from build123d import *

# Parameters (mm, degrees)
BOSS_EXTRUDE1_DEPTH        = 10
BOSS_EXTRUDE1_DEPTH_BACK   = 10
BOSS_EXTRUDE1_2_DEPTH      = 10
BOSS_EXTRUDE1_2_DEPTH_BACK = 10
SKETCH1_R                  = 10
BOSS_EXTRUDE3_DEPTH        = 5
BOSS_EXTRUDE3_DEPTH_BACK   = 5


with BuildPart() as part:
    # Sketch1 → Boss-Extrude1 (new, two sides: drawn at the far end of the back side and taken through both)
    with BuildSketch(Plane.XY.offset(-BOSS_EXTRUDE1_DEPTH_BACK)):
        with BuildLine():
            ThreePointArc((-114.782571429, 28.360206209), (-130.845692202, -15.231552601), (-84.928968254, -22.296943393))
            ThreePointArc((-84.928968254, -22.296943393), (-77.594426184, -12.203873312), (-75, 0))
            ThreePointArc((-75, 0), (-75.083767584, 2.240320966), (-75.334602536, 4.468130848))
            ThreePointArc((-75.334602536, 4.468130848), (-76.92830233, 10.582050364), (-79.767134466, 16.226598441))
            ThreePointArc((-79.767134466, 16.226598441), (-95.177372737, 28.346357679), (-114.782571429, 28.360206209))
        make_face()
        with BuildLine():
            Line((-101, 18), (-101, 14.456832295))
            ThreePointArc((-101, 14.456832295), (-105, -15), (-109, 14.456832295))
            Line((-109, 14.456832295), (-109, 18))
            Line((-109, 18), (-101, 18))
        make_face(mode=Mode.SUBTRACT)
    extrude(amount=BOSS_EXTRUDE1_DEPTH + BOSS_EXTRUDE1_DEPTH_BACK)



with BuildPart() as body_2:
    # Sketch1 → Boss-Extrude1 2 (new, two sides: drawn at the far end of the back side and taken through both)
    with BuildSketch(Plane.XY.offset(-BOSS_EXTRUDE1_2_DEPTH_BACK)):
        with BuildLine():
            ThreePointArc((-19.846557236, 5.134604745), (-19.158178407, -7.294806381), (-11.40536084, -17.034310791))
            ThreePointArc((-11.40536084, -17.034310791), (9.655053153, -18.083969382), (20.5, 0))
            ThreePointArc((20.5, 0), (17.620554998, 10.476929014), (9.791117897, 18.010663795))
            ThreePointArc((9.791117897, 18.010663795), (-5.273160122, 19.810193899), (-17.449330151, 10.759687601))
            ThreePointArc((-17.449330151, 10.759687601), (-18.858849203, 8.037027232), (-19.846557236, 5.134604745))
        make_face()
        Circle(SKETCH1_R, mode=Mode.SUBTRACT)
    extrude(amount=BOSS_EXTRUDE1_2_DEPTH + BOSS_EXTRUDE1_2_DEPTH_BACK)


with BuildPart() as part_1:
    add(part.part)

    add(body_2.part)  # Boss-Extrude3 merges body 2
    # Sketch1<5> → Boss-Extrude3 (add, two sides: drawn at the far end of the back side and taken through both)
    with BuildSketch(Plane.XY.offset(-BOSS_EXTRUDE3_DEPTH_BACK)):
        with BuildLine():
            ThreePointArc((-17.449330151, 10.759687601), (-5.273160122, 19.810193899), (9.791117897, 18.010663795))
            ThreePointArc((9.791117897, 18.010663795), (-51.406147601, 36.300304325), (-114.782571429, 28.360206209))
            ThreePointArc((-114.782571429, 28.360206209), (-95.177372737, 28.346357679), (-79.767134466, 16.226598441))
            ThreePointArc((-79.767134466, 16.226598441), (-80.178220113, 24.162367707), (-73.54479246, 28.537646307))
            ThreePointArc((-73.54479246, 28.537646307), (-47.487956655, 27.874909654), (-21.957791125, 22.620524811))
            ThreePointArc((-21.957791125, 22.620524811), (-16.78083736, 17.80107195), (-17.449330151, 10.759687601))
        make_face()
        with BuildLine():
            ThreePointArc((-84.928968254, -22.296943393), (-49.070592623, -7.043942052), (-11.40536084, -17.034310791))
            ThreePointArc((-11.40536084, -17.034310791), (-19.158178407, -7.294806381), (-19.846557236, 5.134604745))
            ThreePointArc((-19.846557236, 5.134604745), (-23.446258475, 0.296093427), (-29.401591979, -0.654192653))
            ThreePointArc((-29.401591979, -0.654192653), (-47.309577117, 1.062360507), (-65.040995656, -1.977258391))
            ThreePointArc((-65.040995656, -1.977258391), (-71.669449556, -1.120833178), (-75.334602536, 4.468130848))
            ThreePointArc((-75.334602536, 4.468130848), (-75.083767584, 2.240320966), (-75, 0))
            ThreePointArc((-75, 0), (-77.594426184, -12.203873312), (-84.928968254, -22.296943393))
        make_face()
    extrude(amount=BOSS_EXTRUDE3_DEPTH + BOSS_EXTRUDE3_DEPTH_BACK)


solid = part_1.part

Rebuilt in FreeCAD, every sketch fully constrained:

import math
import FreeCAD as App
import Part
import Sketcher

V = App.Vector
Q = App.Units.Quantity

doc = App.newDocument("Part")
body = doc.addObject("PartDesign::Body", "Body")

sketch1 = doc.addObject("Sketcher::SketchObject", "Sketch")
body.addObject(sketch1)
sketch1.AttachmentSupport = (doc.XY_Plane, [""])
sketch1.MapMode = "FlatFace"
sketch1.addGeometry([
    Part.ArcOfCircle(Part.Circle(V(-105, 0, 0), V(0, 0, 1), 30), math.radians(109), math.radians(312)),
    Part.ArcOfCircle(Part.Circle(V(-105, 0, 0), V(0, 0, 1), 30), math.radians(-48), math.radians(0)),
    Part.ArcOfCircle(Part.Circle(V(-105, 0, 0), V(0, 0, 1), 30), math.radians(0), math.radians(8.57)),
    Part.ArcOfCircle(Part.Circle(V(-105, 0, 0), V(0, 0, 1), 30), math.radians(9), math.radians(33)),
    Part.ArcOfCircle(Part.Circle(V(-105, 0, 0), V(0, 0, 1), 30), math.radians(33), math.radians(109)),
    Part.LineSegment(V(-109, 18, 0), V(-101, 18, 0)),
    Part.LineSegment(V(-101, 18, 0), V(-101, 14.5, 0)),
    Part.ArcOfCircle(Part.Circle(V(-105, 0, 0), V(0, 0, 1), 15), math.radians(105), math.radians(435)),
    Part.LineSegment(V(-109, 14.5, 0), V(-109, 18, 0)),
], False)
sketch1.addConstraint([
    Sketcher.Constraint("Tangent", 0, 2, 1, 1),
    Sketcher.Constraint("Tangent", 1, 2, 2, 1),
    Sketcher.Constraint("Tangent", 2, 2, 3, 1),
    Sketcher.Constraint("Tangent", 3, 2, 4, 1),
    Sketcher.Constraint("Tangent", 4, 2, 0, 1),
    Sketcher.Constraint("Coincident", 5, 2, 6, 1),
    Sketcher.Constraint("Coincident", 6, 2, 7, 2),
    Sketcher.Constraint("Coincident", 7, 1, 8, 1),
    Sketcher.Constraint("Coincident", 8, 2, 5, 1),
    Sketcher.Constraint("Horizontal", 5),
    Sketcher.Constraint("Vertical", 6),
    Sketcher.Constraint("Vertical", 8),
    Sketcher.Constraint("Coincident", 2, 3, 0, 3),
    Sketcher.Constraint("Coincident", 7, 3, 0, 3),
    Sketcher.Constraint("PointOnObject", 0, 3, -1),
    Sketcher.Constraint("PointOnObject", 1, 2, -1),
    Sketcher.Constraint("Horizontal", 6, 2, 7, 1),
    Sketcher.Constraint("Radius", 0, Q("30 mm")),
    Sketcher.Constraint("Radius", 7, Q("15 mm")),
    Sketcher.Constraint("DistanceX", 5, 1, 5, 2, Q("8 mm")),
    Sketcher.Constraint("DistanceX", 0, 3, -1, 1, Q("105 mm")),
    Sketcher.Constraint("DistanceY", -1, 1, 5, 2, Q("18 mm")),
    Sketcher.Constraint("DistanceY", -1, 1, 3, 2, Q("16.226598 mm")),
    Sketcher.Constraint("DistanceX", 0, 2, -1, 1, Q("84.928968 mm")),
    Sketcher.Constraint("DistanceY", -1, 1, 2, 2, Q("4.468131 mm")),
    Sketcher.Constraint("DistanceX", 4, 2, -1, 1, Q("114.782571 mm")),
])
pad1 = doc.addObject("PartDesign::Pad", "Pad")
body.addObject(pad1)
pad1.Profile = sketch1
pad1.Type = "TwoLengths"
pad1.Length = 10
pad1.Length2 = 10
body2 = doc.addObject("PartDesign::Body", "Body001")

sketch2 = doc.addObject("Sketcher::SketchObject", "Sketch001")
body2.addObject(sketch2)
sketch2.AttachmentSupport = (doc.getObject("XY_Plane001"), [""])
sketch2.MapMode = "FlatFace"
sketch2.addGeometry([
    Part.ArcOfCircle(Part.Circle(V(0, 0, 0), V(0, 0, 1), 20), math.radians(165), math.radians(236)),
    Part.ArcOfCircle(Part.Circle(V(0, 0, 0), V(0, 0, 1), 20), math.radians(-124), math.radians(0)),
    Part.ArcOfCircle(Part.Circle(V(0, 0, 0), V(0, 0, 1), 21), math.radians(0), math.radians(61)),
    Part.ArcOfCircle(Part.Circle(V(0, 0, 0), V(0, 0, 1), 21), math.radians(61), math.radians(148)),
    Part.ArcOfCircle(Part.Circle(V(0, 0, 0), V(0, 0, 1), 21), math.radians(148.34), math.radians(165.49)),
    Part.Circle(V(0, 0, 0), V(0, 0, 1), 10),
], False)
sketch2.addConstraint([
    Sketcher.Constraint("Tangent", 0, 2, 1, 1),
    Sketcher.Constraint("Tangent", 1, 2, 2, 1),
    Sketcher.Constraint("Tangent", 2, 2, 3, 1),
    Sketcher.Constraint("Tangent", 3, 2, 4, 1),
    Sketcher.Constraint("Tangent", 4, 2, 0, 1),
    Sketcher.Constraint("Coincident", 0, 3, -1, 1),
    Sketcher.Constraint("Coincident", 2, 3, -1, 1),
    Sketcher.Constraint("Coincident", 5, 3, -1, 1),
    Sketcher.Constraint("PointOnObject", 1, 2, -1),
    Sketcher.Constraint("Diameter", 5, Q("20 mm")),
    Sketcher.Constraint("Radius", 0, Q("20.5 mm")),
    Sketcher.Constraint("DistanceX", 0, 2, -1, 1, Q("11.405361 mm")),
    Sketcher.Constraint("DistanceX", 3, 2, -1, 1, Q("17.44933 mm")),
    Sketcher.Constraint("DistanceX", -1, 1, 2, 2, Q("9.791118 mm")),
    Sketcher.Constraint("DistanceX", 4, 2, -1, 1, Q("19.846557 mm")),
])
pad2 = doc.addObject("PartDesign::Pad", "Pad001")
body2.addObject(pad2)
pad2.Profile = sketch2
pad2.Type = "TwoLengths"
pad2.Length = 10
pad2.Length2 = 10
body.AllowCompound = True
doc.recompute()

boolean = doc.addObject("PartDesign::Boolean", "Boolean")
body.addObject(boolean)
boolean.Type = "Fuse"
boolean.addObjects([body2])

sketch3 = doc.addObject("Sketcher::SketchObject", "Sketch002")
body.addObject(sketch3)
sketch3.AttachmentSupport = (doc.XY_Plane, [""])
sketch3.MapMode = "FlatFace"
sketch3.addGeometry([
    Part.ArcOfCircle(Part.Circle(V(0, 0, 0), V(0, 0, 1), 20.5), math.radians(61), math.radians(148)),
    Part.ArcOfCircle(Part.Circle(V(-64.2, -118.2, 0), V(0, 0, 1), 155), math.radians(61), math.radians(109)),
    Part.ArcOfCircle(Part.Circle(V(-105, 0, 0), V(0, 0, 1), 30), math.radians(33), math.radians(109)),
    Part.ArcOfCircle(Part.Circle(V(-73, 20.6, 0), V(0, 0, 1), 8), math.radians(94), math.radians(213)),
    Part.ArcOfCircle(Part.Circle(V(-64.2, -118.2, 0), V(0, 0, 1), 147), math.radians(73), math.radians(94)),
    Part.ArcOfCircle(Part.Circle(V(-24.3, 15, 0), V(0, 0, 1), 8), math.radians(-32), math.radians(73)),
    Part.ArcOfCircle(Part.Circle(V(-44.8, -66.9, 0), V(0, 0, 1), 60), math.radians(56), math.radians(132)),
    Part.ArcOfCircle(Part.Circle(V(0, 0, 0), V(0, 0, 1), 20.5), math.radians(165), math.radians(236)),
    Part.ArcOfCircle(Part.Circle(V(-27.6, 7.1, 0), V(0, 0, 1), 8), math.radians(-103), math.radians(-15)),
    Part.ArcOfCircle(Part.Circle(V(-44.8, -66.9, 0), V(0, 0, 1), 68), math.radians(77), math.radians(107)),
    Part.ArcOfCircle(Part.Circle(V(-67.4, 5.7, 0), V(0, 0, 1), 8), math.radians(-171), math.radians(-73)),
    Part.ArcOfCircle(Part.Circle(V(-105, 0, 0), V(0, 0, 1), 30), math.radians(0), math.radians(8.57)),
    Part.ArcOfCircle(Part.Circle(V(-105, 0, 0), V(0, 0, 1), 30), math.radians(-48), math.radians(0)),
], False)
sketch3.addConstraint([
    Sketcher.Constraint("Tangent", 0, 1, 1, 1),
    Sketcher.Constraint("Tangent", 1, 2, 2, 2),
    Sketcher.Constraint("Tangent", 2, 1, 3, 2),
    Sketcher.Constraint("Tangent", 3, 1, 4, 2),
    Sketcher.Constraint("Tangent", 4, 1, 5, 2),
    Sketcher.Constraint("Tangent", 5, 1, 0, 2),
    Sketcher.Constraint("Tangent", 6, 1, 7, 2),
    Sketcher.Constraint("Tangent", 7, 1, 8, 2),
    Sketcher.Constraint("Tangent", 8, 1, 9, 1),
    Sketcher.Constraint("Tangent", 9, 2, 10, 2),
    Sketcher.Constraint("Tangent", 10, 1, 11, 2),
    Sketcher.Constraint("Tangent", 11, 1, 12, 2),
    Sketcher.Constraint("Tangent", 12, 1, 6, 2),
    Sketcher.Constraint("Coincident", 0, 3, -1, 1),
    Sketcher.Constraint("Coincident", 7, 3, -1, 1),
    Sketcher.Constraint("Coincident", 4, 3, 1, 3),
    Sketcher.Constraint("Coincident", 9, 3, 6, 3),
    Sketcher.Constraint("Coincident", 11, 3, 2, 3),
    Sketcher.Constraint("Equal", 3, 5),
    Sketcher.Constraint("Equal", 0, 7),
    Sketcher.Constraint("Equal", 5, 8),
    Sketcher.Constraint("Equal", 8, 10),
    Sketcher.Constraint("Equal", 2, 11),
    Sketcher.Constraint("Equal", 11, 12),
    Sketcher.Constraint("PointOnObject", 2, 3, -1),
    Sketcher.Constraint("PointOnObject", 11, 1, -1),
    Sketcher.Constraint("Radius", 1, Q("155 mm")),
    Sketcher.Constraint("Radius", 2, Q("30 mm")),
    Sketcher.Constraint("Radius", 3, Q("8 mm")),
    Sketcher.Constraint("Radius", 4, Q("147 mm")),
    Sketcher.Constraint("Radius", 6, Q("60 mm")),
    Sketcher.Constraint("Radius", 9, Q("68 mm")),
    Sketcher.Constraint("Radius", 0, Q("20.5 mm")),
    Sketcher.Constraint("DistanceX", 2, 3, -1, 1, Q("105 mm")),
])
pad3 = doc.addObject("PartDesign::Pad", "Pad002")
body.addObject(pad3)
pad3.Profile = sketch3
pad3.Type = "TwoLengths"
pad3.Length = 5
pad3.Length2 = 5

doc.recompute()
